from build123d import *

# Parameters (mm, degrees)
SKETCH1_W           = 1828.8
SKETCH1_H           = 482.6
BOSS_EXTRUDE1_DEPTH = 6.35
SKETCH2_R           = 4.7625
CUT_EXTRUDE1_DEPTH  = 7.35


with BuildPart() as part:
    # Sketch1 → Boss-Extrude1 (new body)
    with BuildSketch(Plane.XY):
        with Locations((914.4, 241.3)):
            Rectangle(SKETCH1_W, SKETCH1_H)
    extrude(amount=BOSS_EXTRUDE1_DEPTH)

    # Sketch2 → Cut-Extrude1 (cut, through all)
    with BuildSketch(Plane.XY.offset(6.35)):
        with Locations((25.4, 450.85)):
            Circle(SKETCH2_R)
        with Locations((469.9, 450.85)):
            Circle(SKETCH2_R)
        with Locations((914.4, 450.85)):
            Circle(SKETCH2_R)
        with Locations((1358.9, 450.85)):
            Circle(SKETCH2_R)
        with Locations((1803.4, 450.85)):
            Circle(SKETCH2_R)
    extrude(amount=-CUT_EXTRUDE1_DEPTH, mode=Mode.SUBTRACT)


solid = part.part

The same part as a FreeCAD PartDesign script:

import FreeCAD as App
import Part
import Sketcher
from FreeCAD import Vector
Q = App.Units.Quantity

doc = App.newDocument("Part")
body = doc.addObject("PartDesign::Body", "Body")

# Sketch on XY plane
sketch1 = body.newObject("Sketcher::SketchObject", "Sketch")
sketch1.AttachmentSupport = (doc.getObject("XY_Plane"), [""])
sketch1.MapMode = "FlatFace"
sketch1.addGeometry(Part.LineSegment(Vector(0, 483, 0), Vector(0, 0, 0)), False)
sketch1.addGeometry(Part.LineSegment(Vector(0, 0, 0), Vector(1829, 0, 0)), False)
sketch1.addGeometry(Part.LineSegment(Vector(1829, 0, 0), Vector(1829, 483, 0)), False)
sketch1.addGeometry(Part.LineSegment(Vector(1829, 483, 0), Vector(0, 483, 0)), False)
sketch1.addConstraint(Sketcher.Constraint("Coincident", 0, 2, 1, 1))
sketch1.addConstraint(Sketcher.Constraint("Coincident", 1, 2, 2, 1))
sketch1.addConstraint(Sketcher.Constraint("Coincident", 2, 2, 3, 1))
sketch1.addConstraint(Sketcher.Constraint("Coincident", 3, 2, 0, 1))
sketch1.addConstraint(Sketcher.Constraint("Vertical", 0))
sketch1.addConstraint(Sketcher.Constraint("Horizontal", 1))
sketch1.addConstraint(Sketcher.Constraint("Vertical", 2))
sketch1.addConstraint(Sketcher.Constraint("Horizontal", 3))
sketch1.addConstraint(Sketcher.Constraint("Coincident", 0, 2, -1, 1))
sketch1.addConstraint(Sketcher.Constraint("DistanceX", 1, 1, 1, 2, Q("72 in")))
sketch1.addConstraint(Sketcher.Constraint("DistanceY", 0, 2, 0, 1, Q("19 in")))
pad1 = body.newObject("PartDesign::Pad", "Pad")
pad1.Profile = sketch1
pad1.Length = Q("0.25 in")

# Sketch on XY plane
sketch2 = body.newObject("Sketcher::SketchObject", "Sketch001")
sketch2.AttachmentSupport = (doc.getObject("XY_Plane"), [""])
sketch2.MapMode = "FlatFace"
sketch2.AttachmentOffset = App.Placement(Vector(0, 0, 0.25 * 25.4), App.Rotation())
sketch2.addGeometry(Part.Circle(Vector(25.4, 450.9, 0), Vector(0, 0, 1), 4.8), False)
sketch2.addGeometry(Part.Circle(Vector(469.9, 450.9, 0), Vector(0, 0, 1), 4.8), False)
sketch2.addGeometry(Part.Circle(Vector(914.4, 450.9, 0), Vector(0, 0, 1), 4.8), False)
sketch2.addGeometry(Part.Circle(Vector(1358.9, 450.9, 0), Vector(0, 0, 1), 4.8), False)
sketch2.addGeometry(Part.Circle(Vector(1803.4, 450.9, 0), Vector(0, 0, 1), 4.8), False)
sketch2.addConstraint(Sketcher.Constraint("Equal", 0, 1))
sketch2.addConstraint(Sketcher.Constraint("Equal", 1, 2))
sketch2.addConstraint(Sketcher.Constraint("Equal", 2, 3))
sketch2.addConstraint(Sketcher.Constraint("Equal", 3, 4))
sketch2.addConstraint(Sketcher.Constraint("Horizontal", 0, 3, 1, 3))
sketch2.addConstraint(Sketcher.Constraint("Horizontal", 1, 3, 2, 3))
sketch2.addConstraint(Sketcher.Constraint("Horizontal", 2, 3, 3, 3))
sketch2.addConstraint(Sketcher.Constraint("Horizontal", 3, 3, 4, 3))
sketch2.addConstraint(Sketcher.Constraint("Diameter", 0, Q("0.375 in")))
sketch2.addConstraint(Sketcher.Constraint("DistanceX", -1, 1, 0, 3, Q("1 in")))
sketch2.addConstraint(Sketcher.Constraint("DistanceX", -1, 1, 2, 3, Q("36 in")))
sketch2.addConstraint(Sketcher.Constraint("DistanceX", -1, 1, 4, 3, Q("71 in")))
sketch2.addConstraint(Sketcher.Constraint("DistanceX", 1, 3, 3, 3, Q("35 in")))
sketch2.addConstraint(Sketcher.Constraint("DistanceX", -1, 1, 1, 3, Q("18.5 in")))
sketch2.addConstraint(Sketcher.Constraint("DistanceY", -1, 1, 0, 3, Q("17.75 in")))
pocket1 = body.newObject("PartDesign::Pocket", "Pocket")
pocket1.Profile = sketch2
pocket1.Type = "ThroughAll"

doc.recompute()
